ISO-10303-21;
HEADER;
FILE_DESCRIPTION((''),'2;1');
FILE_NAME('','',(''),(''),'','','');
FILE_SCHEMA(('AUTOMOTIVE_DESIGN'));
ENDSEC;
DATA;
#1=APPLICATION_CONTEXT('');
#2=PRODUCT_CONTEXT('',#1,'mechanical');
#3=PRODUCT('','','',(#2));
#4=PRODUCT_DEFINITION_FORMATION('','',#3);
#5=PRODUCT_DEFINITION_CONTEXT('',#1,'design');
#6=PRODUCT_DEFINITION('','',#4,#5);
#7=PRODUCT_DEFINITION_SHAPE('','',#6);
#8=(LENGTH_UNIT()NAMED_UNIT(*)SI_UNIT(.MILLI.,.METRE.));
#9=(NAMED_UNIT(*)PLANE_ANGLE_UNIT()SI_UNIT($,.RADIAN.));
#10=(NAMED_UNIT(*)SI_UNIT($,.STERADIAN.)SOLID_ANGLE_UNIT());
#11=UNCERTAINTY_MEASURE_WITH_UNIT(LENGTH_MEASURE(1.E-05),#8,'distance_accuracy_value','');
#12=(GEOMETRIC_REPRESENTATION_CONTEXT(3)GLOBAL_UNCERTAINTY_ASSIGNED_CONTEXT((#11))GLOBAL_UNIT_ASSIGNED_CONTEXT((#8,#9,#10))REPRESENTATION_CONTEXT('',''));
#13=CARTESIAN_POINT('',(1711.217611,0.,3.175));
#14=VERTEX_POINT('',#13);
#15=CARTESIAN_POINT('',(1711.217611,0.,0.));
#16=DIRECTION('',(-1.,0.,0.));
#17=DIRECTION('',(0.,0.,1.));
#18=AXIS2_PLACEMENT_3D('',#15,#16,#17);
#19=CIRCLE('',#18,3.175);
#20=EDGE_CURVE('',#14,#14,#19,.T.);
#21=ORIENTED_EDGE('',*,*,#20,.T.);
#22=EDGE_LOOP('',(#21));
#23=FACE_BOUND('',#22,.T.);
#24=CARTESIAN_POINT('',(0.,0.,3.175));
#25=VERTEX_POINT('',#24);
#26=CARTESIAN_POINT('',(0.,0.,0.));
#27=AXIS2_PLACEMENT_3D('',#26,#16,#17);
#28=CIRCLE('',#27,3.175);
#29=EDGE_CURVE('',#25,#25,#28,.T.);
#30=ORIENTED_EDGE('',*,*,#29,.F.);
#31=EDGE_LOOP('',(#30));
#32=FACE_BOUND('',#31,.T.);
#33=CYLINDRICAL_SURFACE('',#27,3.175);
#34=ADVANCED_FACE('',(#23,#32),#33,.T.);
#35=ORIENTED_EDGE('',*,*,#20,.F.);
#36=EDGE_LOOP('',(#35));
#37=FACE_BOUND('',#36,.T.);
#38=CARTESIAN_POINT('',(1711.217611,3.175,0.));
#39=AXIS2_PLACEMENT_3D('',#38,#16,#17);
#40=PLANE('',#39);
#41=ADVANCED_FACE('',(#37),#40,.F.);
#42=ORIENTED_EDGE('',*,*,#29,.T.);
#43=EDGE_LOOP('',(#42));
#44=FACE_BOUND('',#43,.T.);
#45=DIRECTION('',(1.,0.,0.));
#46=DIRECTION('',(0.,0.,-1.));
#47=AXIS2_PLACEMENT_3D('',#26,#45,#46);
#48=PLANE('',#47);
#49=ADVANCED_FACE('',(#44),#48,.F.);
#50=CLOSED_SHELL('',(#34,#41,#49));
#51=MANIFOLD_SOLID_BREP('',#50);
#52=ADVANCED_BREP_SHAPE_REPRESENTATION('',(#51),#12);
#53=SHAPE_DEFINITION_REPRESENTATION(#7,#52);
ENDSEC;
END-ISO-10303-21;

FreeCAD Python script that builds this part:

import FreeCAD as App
import Part
import Sketcher
Q = App.Units.Quantity


def add_polygon(sketch, points):
    """Adds a closed chain of lines whose ends are joined by coincident constraints."""
    first, n = sketch.GeometryCount, len(points)
    for a, b in zip(points, points[1:] + points[:1]):
        sketch.addGeometry(Part.LineSegment(App.Vector(*a, 0), App.Vector(*b, 0)), False)
    for i in range(n):
        sketch.addConstraint(Sketcher.Constraint("Coincident", first + i, 2, first + (i + 1) % n, 1))

doc = App.newDocument("Part")
body = doc.addObject("PartDesign::Body", "Body")

sketch1 = doc.addObject("Sketcher::SketchObject", "Sketch")
body.addObject(sketch1)
sketch1.AttachmentSupport = (doc.XY_Plane, [""])
sketch1.MapMode = "FlatFace"
add_polygon(sketch1, [(0, 3.2), (0, 0), (1711.2, 0), (1711.2, 3.2)])
sketch1.addConstraint([
    Sketcher.Constraint("Vertical", 0),
    Sketcher.Constraint("Horizontal", 1),
    Sketcher.Constraint("Vertical", 2),
    Sketcher.Constraint("Horizontal", 3),
    Sketcher.Constraint("Coincident", 0, 2, -1, 1),
    Sketcher.Constraint("DistanceY", 0, 2, 0, 1, Q("0.125 in")),
    Sketcher.Constraint("DistanceX", 1, 1, 1, 2, 1711.217611),
])
revolution = doc.addObject("PartDesign::Revolution", "Revolution")
body.addObject(revolution)
revolution.Profile = sketch1
revolution.ReferenceAxis = (sketch1, ["H_Axis"])
revolution.Angle = 360

doc.recompute()
